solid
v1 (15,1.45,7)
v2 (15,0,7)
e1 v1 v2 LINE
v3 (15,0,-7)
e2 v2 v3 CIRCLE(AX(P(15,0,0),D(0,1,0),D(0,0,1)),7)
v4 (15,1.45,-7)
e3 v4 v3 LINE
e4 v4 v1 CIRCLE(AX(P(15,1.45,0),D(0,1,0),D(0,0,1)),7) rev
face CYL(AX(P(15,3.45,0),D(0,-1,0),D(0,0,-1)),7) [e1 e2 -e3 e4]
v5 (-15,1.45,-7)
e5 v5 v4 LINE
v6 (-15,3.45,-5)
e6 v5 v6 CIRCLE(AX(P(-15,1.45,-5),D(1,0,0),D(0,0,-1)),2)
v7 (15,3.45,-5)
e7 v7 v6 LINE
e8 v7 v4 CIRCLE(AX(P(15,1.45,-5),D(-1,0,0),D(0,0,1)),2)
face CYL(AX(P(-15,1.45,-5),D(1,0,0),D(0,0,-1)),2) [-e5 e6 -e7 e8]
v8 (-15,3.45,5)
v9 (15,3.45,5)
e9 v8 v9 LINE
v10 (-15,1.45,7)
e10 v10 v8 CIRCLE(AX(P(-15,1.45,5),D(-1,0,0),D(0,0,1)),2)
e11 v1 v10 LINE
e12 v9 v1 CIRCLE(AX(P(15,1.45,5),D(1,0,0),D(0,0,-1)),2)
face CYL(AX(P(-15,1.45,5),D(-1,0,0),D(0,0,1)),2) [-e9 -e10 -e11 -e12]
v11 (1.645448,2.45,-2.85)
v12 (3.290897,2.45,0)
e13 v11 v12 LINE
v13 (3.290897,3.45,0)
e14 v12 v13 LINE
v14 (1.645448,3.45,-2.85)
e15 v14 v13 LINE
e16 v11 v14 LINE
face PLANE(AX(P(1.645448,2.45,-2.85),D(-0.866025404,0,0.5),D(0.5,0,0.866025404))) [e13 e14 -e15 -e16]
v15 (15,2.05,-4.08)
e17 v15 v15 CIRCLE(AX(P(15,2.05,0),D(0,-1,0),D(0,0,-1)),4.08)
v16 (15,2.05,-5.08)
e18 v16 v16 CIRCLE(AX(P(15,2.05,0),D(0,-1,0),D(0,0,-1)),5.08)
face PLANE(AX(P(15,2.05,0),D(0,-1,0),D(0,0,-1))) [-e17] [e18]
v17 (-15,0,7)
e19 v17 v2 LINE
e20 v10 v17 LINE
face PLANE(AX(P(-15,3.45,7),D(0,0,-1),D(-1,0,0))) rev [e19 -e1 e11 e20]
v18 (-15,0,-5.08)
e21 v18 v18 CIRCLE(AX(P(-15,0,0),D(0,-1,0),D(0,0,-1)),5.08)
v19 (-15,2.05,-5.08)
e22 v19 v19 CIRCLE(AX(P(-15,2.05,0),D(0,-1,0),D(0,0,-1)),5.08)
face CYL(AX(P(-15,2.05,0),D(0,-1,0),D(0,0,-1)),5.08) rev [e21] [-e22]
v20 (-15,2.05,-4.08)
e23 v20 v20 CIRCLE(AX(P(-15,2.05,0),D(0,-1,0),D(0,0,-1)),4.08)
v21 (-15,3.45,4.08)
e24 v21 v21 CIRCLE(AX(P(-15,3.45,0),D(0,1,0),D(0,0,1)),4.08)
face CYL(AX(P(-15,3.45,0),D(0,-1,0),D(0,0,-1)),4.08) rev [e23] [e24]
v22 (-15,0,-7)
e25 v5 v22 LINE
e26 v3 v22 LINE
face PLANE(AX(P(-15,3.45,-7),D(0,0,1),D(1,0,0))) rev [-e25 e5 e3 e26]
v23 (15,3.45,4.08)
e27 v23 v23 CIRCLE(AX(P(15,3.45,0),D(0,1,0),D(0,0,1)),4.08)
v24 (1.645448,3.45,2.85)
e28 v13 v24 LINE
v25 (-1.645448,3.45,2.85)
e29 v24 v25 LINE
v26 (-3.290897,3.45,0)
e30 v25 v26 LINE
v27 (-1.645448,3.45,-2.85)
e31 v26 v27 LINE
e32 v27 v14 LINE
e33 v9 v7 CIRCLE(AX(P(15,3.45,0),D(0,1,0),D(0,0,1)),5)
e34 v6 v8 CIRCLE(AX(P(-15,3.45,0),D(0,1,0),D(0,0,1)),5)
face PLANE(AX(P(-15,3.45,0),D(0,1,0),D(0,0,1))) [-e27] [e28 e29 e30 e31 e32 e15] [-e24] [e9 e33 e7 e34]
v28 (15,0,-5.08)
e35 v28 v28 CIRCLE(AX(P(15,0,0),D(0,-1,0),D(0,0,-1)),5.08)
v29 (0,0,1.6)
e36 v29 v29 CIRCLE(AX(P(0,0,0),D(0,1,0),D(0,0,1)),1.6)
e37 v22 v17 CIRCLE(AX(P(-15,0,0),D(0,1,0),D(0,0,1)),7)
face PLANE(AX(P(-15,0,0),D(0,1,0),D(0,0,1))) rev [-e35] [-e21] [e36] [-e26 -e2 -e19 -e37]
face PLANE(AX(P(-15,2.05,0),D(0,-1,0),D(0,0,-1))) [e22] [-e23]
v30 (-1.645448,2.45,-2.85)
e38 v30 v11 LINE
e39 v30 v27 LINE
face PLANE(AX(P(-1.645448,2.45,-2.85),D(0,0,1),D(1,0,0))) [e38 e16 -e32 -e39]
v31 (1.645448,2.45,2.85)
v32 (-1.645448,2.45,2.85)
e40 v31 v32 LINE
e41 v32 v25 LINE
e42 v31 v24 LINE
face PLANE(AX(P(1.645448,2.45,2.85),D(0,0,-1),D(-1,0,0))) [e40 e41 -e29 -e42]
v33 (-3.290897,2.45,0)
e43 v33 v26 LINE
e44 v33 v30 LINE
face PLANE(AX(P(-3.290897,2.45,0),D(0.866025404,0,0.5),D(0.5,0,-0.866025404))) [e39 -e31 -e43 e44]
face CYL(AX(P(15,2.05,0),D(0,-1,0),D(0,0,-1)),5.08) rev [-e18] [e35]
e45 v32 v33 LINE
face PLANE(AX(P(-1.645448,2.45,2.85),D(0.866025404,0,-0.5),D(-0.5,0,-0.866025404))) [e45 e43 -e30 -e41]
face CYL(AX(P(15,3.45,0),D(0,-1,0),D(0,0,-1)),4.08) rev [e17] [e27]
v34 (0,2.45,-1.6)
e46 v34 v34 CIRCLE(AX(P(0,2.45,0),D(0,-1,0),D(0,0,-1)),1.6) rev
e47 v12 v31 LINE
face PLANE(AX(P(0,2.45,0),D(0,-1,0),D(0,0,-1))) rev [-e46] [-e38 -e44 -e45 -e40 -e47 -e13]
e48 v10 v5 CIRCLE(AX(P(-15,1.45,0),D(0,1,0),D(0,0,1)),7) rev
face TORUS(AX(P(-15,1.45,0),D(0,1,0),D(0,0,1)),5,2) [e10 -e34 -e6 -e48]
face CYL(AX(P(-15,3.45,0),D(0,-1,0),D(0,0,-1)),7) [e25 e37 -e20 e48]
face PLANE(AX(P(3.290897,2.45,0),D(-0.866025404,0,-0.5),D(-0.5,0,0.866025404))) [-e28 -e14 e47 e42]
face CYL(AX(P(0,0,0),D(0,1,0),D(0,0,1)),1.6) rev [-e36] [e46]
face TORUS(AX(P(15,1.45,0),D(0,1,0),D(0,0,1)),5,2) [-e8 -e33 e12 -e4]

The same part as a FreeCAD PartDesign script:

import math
import FreeCAD as App
import Part
import Sketcher
Q = App.Units.Quantity


def edges_at(feature, points):
    """Names of the edges that pass closest to the given points."""
    edges = feature.Shape.Edges
    near = lambda p: min(range(len(edges)), key=lambda i: edges[i].distToShape(Part.Vertex(*p))[0])
    return sorted({f"Edge{near(p) + 1}" for p in points})

doc = App.newDocument("Part")
params = doc.addObject("Spreadsheet::Sheet", "Params")
for row, (alias, value) in enumerate([
    ("sketch1_radius", "7 mm"),
    ("sketch1_diameter", "8.16 mm"),
    ("sketch1_width", "30 mm"),
    ("pad1_length", "3.45 mm"),
    ("sketch2_diameter", "3.2 mm"),
    ("pocket1_length", "3.45 mm"),
    ("pocket2_length", "1 mm"),
    ("sketch4_diameter", "10.16 mm"),
    ("pocket3_length", "2.05 mm"),
    ("fillet_radius", "2 mm"),
], start=1):
    params.set(f"A{row}", alias)
    params.set(f"B{row}", "=" + value)
    params.setAlias(f"B{row}", alias)

body = doc.addObject("PartDesign::Body", "Body")

# Sketch on XZ plane
sketch1 = body.newObject("Sketcher::SketchObject", "Sketch")
sketch1.AttachmentSupport = (doc.getObject("XZ_Plane"), [""])
sketch1.MapMode = "FlatFace"
sketch1.addGeometry([
    Part.LineSegment(App.Vector(15, -7, 0), App.Vector(-15, -7, 0)),  # 0
    Part.ArcOfCircle(Part.Circle(App.Vector(-15, 0, 0), App.Vector(0, 0, 1), 7), math.radians(90), math.radians(270)),  # 1
    Part.LineSegment(App.Vector(-15, 7, 0), App.Vector(15, 7, 0)),  # 2
    Part.ArcOfCircle(Part.Circle(App.Vector(15, 0, 0), App.Vector(0, 0, 1), 7), math.radians(-90), math.radians(90)),  # 3
    Part.Circle(App.Vector(15, 0, 0), App.Vector(0, 0, 1), 4.08),  # 4
    Part.Circle(App.Vector(-15, 0, 0), App.Vector(0, 0, 1), 4.08),  # 5
], False)
sketch1.addConstraint([
    Sketcher.Constraint("Tangent", 0, 2, 1, 2),
    Sketcher.Constraint("Tangent", 1, 1, 2, 1),
    Sketcher.Constraint("Tangent", 2, 2, 3, 2),
    Sketcher.Constraint("Tangent", 3, 1, 0, 1),
    Sketcher.Constraint("Horizontal", 0),
    Sketcher.Constraint("Horizontal", 2),
    Sketcher.Constraint("Coincident", 4, 3, 3, 3),
    Sketcher.Constraint("Coincident", 5, 3, 1, 3),
    Sketcher.Constraint("Equal", 4, 5),
    Sketcher.Constraint("Symmetric", 1, 3, 3, 3, -1, 1),
    Sketcher.Constraint("Radius", 1, Q("7 mm")),
    Sketcher.Constraint("Diameter", 4, Q("8.16 mm")),
    Sketcher.Constraint("DistanceX", 0, 2, 0, 1, Q("30 mm")),
])
sketch1.setExpression("Constraints[10]", "Params.sketch1_radius")
sketch1.setExpression("Constraints[11]", "Params.sketch1_diameter")
sketch1.setExpression("Constraints[12]", "Params.sketch1_width")
pad1 = body.newObject("PartDesign::Pad", "Pad")
pad1.Profile = sketch1
pad1.setExpression("Length", "Params.pad1_length")
pad1.Reversed = True

# Sketch on XZ plane
sketch2 = body.newObject("Sketcher::SketchObject", "Sketch001")
sketch2.AttachmentSupport = (doc.getObject("XZ_Plane"), [""])
sketch2.MapMode = "FlatFace"
sketch2.AttachmentOffset = App.Placement(App.Vector(0, 0, -3.45), App.Rotation())
sketch2.addGeometry(Part.Circle(App.Vector(0, 0, 0), App.Vector(0, 0, 1), 1.6), False)
sketch2.addConstraint([
    Sketcher.Constraint("Coincident", 0, 3, -1, 1),
    Sketcher.Constraint("Diameter", 0, Q("3.2 mm")),
])
sketch2.setExpression("Constraints[1]", "Params.sketch2_diameter")
pocket1 = body.newObject("PartDesign::Pocket", "Pocket")
pocket1.Profile = sketch2
pocket1.setExpression("Length", "Params.pocket1_length")
pocket1.Reversed = True

# Sketch on XZ plane
sketch3 = body.newObject("Sketcher::SketchObject", "Sketch002")
sketch3.AttachmentSupport = (doc.getObject("XZ_Plane"), [""])
sketch3.MapMode = "FlatFace"
sketch3.AttachmentOffset = App.Placement(App.Vector(0, 0, -3.45), App.Rotation())
sketch3.addGeometry([
    Part.LineSegment(App.Vector(1.645448, -2.85, 0), App.Vector(-1.645448, -2.85, 0)),  # 0
    Part.LineSegment(App.Vector(-1.645448, -2.85, 0), App.Vector(-3.290897, 0, 0)),  # 1
    Part.LineSegment(App.Vector(-3.290897, 0, 0), App.Vector(-1.645448, 2.85, 0)),  # 2
    Part.LineSegment(App.Vector(-1.645448, 2.85, 0), App.Vector(1.645448, 2.85, 0)),  # 3
    Part.LineSegment(App.Vector(1.645448, 2.85, 0), App.Vector(3.290897, 0, 0)),  # 4
    Part.LineSegment(App.Vector(3.290897, 0, 0), App.Vector(1.645448, -2.85, 0)),  # 5
], False)
sketch3.addConstraint([
    Sketcher.Constraint("Coincident", 0, 2, 1, 1),
    Sketcher.Constraint("Coincident", 1, 2, 2, 1),
    Sketcher.Constraint("Coincident", 2, 2, 3, 1),
    Sketcher.Constraint("Coincident", 3, 2, 4, 1),
    Sketcher.Constraint("Coincident", 4, 2, 5, 1),
    Sketcher.Constraint("Coincident", 5, 2, 0, 1),
    Sketcher.Constraint("Horizontal", 0),
    Sketcher.Constraint("Horizontal", 3),
    Sketcher.Constraint("Symmetric", 0, 2, 3, 2, -1, 1),
    Sketcher.Constraint("Symmetric", 1, 2, 4, 2, -1, 1),
    Sketcher.Constraint("PointOnObject", 1, 2, -1),
    Sketcher.Constraint("Parallel", 2, 5),
    Sketcher.Constraint("Vertical", 0, 2, 2, 2),
    Sketcher.Constraint("Angle", 1, Q("120 deg")),
    Sketcher.Constraint("DistanceY", 0, 2, 2, 2, Q("5.7 mm")),
    Sketcher.Constraint("DistanceX", 0, 2, 0, 1, Q("3.290897 mm")),
])
pocket2 = body.newObject("PartDesign::Pocket", "Pocket001")
pocket2.Profile = sketch3
pocket2.setExpression("Length", "Params.pocket2_length")
pocket2.Reversed = True

# Sketch on XZ plane
sketch4 = body.newObject("Sketcher::SketchObject", "Sketch003")
sketch4.AttachmentSupport = (doc.getObject("XZ_Plane"), [""])
sketch4.MapMode = "FlatFace"
sketch4.addGeometry([
    Part.Circle(App.Vector(-15, 0, 0), App.Vector(0, 0, 1), 5.08),
    Part.Circle(App.Vector(15, 0, 0), App.Vector(0, 0, 1), 5.08),
], False)
sketch4.addConstraint([
    Sketcher.Constraint("Equal", 0, 1),
    Sketcher.Constraint("Symmetric", 0, 3, 1, 3, -1, 1),
    Sketcher.Constraint("PointOnObject", 0, 3, -1),
    Sketcher.Constraint("Diameter", 0, Q("10.16 mm")),
    Sketcher.Constraint("DistanceX", 0, 3, -1, 1, Q("15 mm")),
])
sketch4.setExpression("Constraints[3]", "Params.sketch4_diameter")
pocket3 = body.newObject("PartDesign::Pocket", "Pocket002")
pocket3.Profile = sketch4
pocket3.setExpression("Length", "Params.pocket3_length")
doc.recompute()

fillet = body.newObject("PartDesign::Fillet", "Fillet")
fillet.Base = (pocket3, edges_at(pocket3, [
    (22, 3.45, 0),
    (0, 3.45, -7),
    (-22, 3.45, 0),
    (0, 3.45, 7),
]))
fillet.setExpression("Radius", "Params.fillet_radius")

doc.recompute()
